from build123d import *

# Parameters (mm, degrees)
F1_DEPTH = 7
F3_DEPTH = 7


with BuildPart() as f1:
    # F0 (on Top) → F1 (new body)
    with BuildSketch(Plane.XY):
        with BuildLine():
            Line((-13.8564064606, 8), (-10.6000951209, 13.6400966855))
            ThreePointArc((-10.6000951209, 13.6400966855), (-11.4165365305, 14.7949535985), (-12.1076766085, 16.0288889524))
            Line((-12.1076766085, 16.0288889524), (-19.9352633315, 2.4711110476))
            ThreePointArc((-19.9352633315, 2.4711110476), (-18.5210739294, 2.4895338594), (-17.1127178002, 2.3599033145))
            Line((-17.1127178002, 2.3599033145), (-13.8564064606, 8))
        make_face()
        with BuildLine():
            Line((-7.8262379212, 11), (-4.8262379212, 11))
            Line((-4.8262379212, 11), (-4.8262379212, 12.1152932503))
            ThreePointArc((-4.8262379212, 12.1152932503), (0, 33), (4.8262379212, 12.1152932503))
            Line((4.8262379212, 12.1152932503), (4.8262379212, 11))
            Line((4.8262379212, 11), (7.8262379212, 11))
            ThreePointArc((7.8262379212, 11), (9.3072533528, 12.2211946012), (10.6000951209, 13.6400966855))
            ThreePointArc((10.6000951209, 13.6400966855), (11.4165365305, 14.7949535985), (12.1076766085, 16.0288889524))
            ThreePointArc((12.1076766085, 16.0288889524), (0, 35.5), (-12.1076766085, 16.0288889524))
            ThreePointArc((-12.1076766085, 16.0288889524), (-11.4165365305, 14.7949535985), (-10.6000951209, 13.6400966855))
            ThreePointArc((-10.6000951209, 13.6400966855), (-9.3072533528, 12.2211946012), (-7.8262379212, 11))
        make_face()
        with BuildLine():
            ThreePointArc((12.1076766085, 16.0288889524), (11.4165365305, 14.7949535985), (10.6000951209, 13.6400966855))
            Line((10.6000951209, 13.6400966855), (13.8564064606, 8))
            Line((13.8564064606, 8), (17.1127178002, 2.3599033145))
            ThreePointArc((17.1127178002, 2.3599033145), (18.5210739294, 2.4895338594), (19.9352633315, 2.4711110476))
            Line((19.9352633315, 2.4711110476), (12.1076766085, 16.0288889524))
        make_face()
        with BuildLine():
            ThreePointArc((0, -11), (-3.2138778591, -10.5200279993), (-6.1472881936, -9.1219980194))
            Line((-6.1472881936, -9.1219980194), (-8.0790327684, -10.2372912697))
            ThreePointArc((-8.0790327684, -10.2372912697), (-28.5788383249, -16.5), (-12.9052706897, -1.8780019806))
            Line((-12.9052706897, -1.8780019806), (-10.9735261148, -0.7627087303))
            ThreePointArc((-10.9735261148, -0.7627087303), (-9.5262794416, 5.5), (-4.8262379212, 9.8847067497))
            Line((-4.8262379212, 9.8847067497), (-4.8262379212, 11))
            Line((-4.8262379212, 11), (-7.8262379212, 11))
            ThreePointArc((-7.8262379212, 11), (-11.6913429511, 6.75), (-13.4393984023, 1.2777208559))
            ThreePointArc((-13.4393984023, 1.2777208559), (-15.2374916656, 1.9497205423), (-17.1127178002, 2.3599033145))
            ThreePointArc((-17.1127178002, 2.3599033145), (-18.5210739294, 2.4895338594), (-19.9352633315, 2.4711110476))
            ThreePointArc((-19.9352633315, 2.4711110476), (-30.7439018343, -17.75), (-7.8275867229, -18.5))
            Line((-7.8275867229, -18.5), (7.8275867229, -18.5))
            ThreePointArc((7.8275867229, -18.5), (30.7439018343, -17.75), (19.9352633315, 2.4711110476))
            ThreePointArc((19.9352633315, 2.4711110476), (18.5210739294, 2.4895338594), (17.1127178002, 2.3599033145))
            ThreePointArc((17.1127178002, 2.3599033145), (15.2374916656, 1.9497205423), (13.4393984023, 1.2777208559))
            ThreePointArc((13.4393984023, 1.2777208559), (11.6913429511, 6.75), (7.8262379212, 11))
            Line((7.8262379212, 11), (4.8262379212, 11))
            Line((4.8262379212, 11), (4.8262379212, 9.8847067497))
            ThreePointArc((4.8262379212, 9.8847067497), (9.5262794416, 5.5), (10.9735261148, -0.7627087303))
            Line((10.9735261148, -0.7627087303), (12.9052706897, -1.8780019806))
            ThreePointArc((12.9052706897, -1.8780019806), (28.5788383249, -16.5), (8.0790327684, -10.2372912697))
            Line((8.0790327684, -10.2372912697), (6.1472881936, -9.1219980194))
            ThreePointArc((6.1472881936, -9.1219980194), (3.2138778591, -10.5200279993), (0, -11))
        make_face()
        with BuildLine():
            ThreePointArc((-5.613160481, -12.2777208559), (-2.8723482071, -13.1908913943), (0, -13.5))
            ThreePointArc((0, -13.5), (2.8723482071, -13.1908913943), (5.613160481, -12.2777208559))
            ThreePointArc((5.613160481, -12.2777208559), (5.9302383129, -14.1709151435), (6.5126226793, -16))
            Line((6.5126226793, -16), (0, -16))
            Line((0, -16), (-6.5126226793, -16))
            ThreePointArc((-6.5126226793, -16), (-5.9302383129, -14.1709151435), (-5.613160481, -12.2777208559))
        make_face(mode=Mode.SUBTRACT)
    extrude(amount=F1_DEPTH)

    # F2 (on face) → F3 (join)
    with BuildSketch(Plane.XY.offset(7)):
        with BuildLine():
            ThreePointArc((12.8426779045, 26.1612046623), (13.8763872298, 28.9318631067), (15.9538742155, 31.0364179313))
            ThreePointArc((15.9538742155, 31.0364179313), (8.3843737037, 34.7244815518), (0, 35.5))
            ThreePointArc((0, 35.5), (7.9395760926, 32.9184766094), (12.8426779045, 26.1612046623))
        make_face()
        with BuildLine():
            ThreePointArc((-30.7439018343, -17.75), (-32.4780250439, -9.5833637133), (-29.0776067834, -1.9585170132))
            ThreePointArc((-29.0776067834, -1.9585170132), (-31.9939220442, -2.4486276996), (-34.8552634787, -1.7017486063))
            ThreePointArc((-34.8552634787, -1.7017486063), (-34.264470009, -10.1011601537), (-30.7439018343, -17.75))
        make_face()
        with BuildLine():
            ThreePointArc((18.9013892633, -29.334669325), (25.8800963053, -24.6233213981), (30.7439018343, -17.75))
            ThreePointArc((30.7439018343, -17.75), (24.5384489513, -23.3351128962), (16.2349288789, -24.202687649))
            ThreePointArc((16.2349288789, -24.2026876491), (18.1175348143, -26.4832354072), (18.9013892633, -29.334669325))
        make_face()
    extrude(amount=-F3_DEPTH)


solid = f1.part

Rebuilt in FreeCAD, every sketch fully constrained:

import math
import FreeCAD as App
import Part
import Sketcher
Q = App.Units.Quantity

doc = App.newDocument("Part")
body = doc.addObject("PartDesign::Body", "Body")

# Sketch on XY plane
sketch1 = doc.addObject("Sketcher::SketchObject", "Sketch")
body.addObject(sketch1)
sketch1.AttachmentSupport = (doc.XY_Plane, [""])
sketch1.MapMode = "FlatFace"
sketch1.addGeometry(Part.LineSegment(App.Vector(19.9, 2.5, 0), App.Vector(12.1, 16, 0)), False)
sketch1.addGeometry(Part.ArcOfCircle(Part.Circle(App.Vector(0, 22, 0), App.Vector(0, 0, 1), 13.5), math.radians(-26), math.radians(206)), False)
sketch1.addGeometry(Part.LineSegment(App.Vector(-12.1, 16, 0), App.Vector(-19.9, 2.5, 0)), False)
sketch1.addGeometry(Part.ArcOfCircle(Part.Circle(App.Vector(-19.1, -11, 0), App.Vector(0, 0, 1), 13.5), math.radians(94), math.radians(326)), False)
sketch1.addGeometry(Part.LineSegment(App.Vector(-7.8, -18.5, 0), App.Vector(7.8, -18.5, 0)), False)
sketch1.addGeometry(Part.ArcOfCircle(Part.Circle(App.Vector(19.1, -11, 0), App.Vector(0, 0, 1), 13.5), math.radians(-146), math.radians(86)), False)
sketch1.addGeometry(Part.ArcOfCircle(Part.Circle(App.Vector(-19.1, -11, 0), App.Vector(0, 0, 1), 13.5), math.radians(-21.74), math.radians(-5.43)), False)
sketch1.addGeometry(Part.ArcOfCircle(Part.Circle(App.Vector(0, 0, 0), App.Vector(0, 0, 1), 13.5), math.radians(-115), math.radians(-90)), False)
sketch1.addGeometry(Part.ArcOfCircle(Part.Circle(App.Vector(0, 0, 0), App.Vector(0, 0, 1), 13.5), math.radians(-90), math.radians(-65)), False)
sketch1.addGeometry(Part.ArcOfCircle(Part.Circle(App.Vector(19.1, -11, 0), App.Vector(0, 0, 1), 13.5), math.radians(-174.57), math.radians(-158.26)), False)
sketch1.addGeometry(Part.LineSegment(App.Vector(6.5, -16, 0), App.Vector(-6.5, -16, 0)), False)
sketch1.addGeometry(Part.LineSegment(App.Vector(-13.9, 8, 0), App.Vector(-10.6, 13.6, 0)), False)
sketch1.addGeometry(Part.ArcOfCircle(Part.Circle(App.Vector(0, 22, 0), App.Vector(0, 0, 1), 13.5), math.radians(-141.74), math.radians(-125.43)), False)
sketch1.addGeometry(Part.ArcOfCircle(Part.Circle(App.Vector(0, 0, 0), App.Vector(0, 0, 1), 13.5), math.radians(125), math.radians(175)), False)
sketch1.addGeometry(Part.ArcOfCircle(Part.Circle(App.Vector(-19.1, -11, 0), App.Vector(0, 0, 1), 13.5), math.radians(65.43), math.radians(81.74)), False)
sketch1.addGeometry(Part.LineSegment(App.Vector(-17.1, 2.4, 0), App.Vector(-13.9, 8, 0)), False)
sketch1.addGeometry(Part.ArcOfCircle(Part.Circle(App.Vector(0, 22, 0), App.Vector(0, 0, 1), 11), math.radians(-64), math.radians(244)), False)
sketch1.addGeometry(Part.LineSegment(App.Vector(4.8, 12.1, 0), App.Vector(4.8, 9.9, 0)), False)
sketch1.addGeometry(Part.ArcOfCircle(Part.Circle(App.Vector(0, 0, 0), App.Vector(0, 0, 1), 11), math.radians(-4), math.radians(64)), False)
sketch1.addGeometry(Part.LineSegment(App.Vector(11, -0.8, 0), App.Vector(12.9, -1.9, 0)), False)
sketch1.addGeometry(Part.ArcOfCircle(Part.Circle(App.Vector(19.1, -11, 0), App.Vector(0, 0, 1), 11), math.radians(176), math.radians(484)), False)
sketch1.addGeometry(Part.LineSegment(App.Vector(8.1, -10.2, 0), App.Vector(6.1, -9.1, 0)), False)
sketch1.addGeometry(Part.ArcOfCircle(Part.Circle(App.Vector(0, 0, 0), App.Vector(0, 0, 1), 11), math.radians(-90), math.radians(-56)), False)
sketch1.addGeometry(Part.ArcOfCircle(Part.Circle(App.Vector(0, 0, 0), App.Vector(0, 0, 1), 11), math.radians(-124), math.radians(-90)), False)
sketch1.addGeometry(Part.LineSegment(App.Vector(-6.1, -9.1, 0), App.Vector(-8.1, -10.2, 0)), False)
sketch1.addGeometry(Part.ArcOfCircle(Part.Circle(App.Vector(-19.1, -11, 0), App.Vector(0, 0, 1), 11), math.radians(56), math.radians(364)), False)
sketch1.addGeometry(Part.LineSegment(App.Vector(-12.9, -1.9, 0), App.Vector(-11, -0.8, 0)), False)
sketch1.addGeometry(Part.ArcOfCircle(Part.Circle(App.Vector(0, 0, 0), App.Vector(0, 0, 1), 11), math.radians(116), math.radians(184)), False)
sketch1.addGeometry(Part.LineSegment(App.Vector(-4.8, 9.9, 0), App.Vector(-4.8, 12.1, 0)), False)
sketch1.addGeometry(Part.ArcOfCircle(Part.Circle(App.Vector(0, 22, 0), App.Vector(0, 0, 1), 13.5), math.radians(-54.57), math.radians(-38.26)), False)
sketch1.addGeometry(Part.LineSegment(App.Vector(10.6, 13.6, 0), App.Vector(13.9, 8, 0)), False)
sketch1.addGeometry(Part.LineSegment(App.Vector(13.9, 8, 0), App.Vector(17.1, 2.4, 0)), False)
sketch1.addGeometry(Part.ArcOfCircle(Part.Circle(App.Vector(19.1, -11, 0), App.Vector(0, 0, 1), 13.5), math.radians(98.26), math.radians(114.57)), False)
sketch1.addGeometry(Part.ArcOfCircle(Part.Circle(App.Vector(0, 0, 0), App.Vector(0, 0, 1), 13.5), math.radians(5), math.radians(55)), False)
sketch1.addConstraint(Sketcher.Constraint("Coincident", 0, 2, 1, 1))
sketch1.addConstraint(Sketcher.Constraint("Coincident", 1, 2, 2, 1))
sketch1.addConstraint(Sketcher.Constraint("Coincident", 2, 2, 3, 1))
sketch1.addConstraint(Sketcher.Constraint("Coincident", 3, 2, 4, 1))
sketch1.addConstraint(Sketcher.Constraint("Coincident", 4, 2, 5, 1))
sketch1.addConstraint(Sketcher.Constraint("Coincident", 5, 2, 0, 1))
sketch1.addConstraint(Sketcher.Constraint("Coincident", 6, 2, 7, 1))
sketch1.addConstraint(Sketcher.Constraint("Tangent", 7, 2, 8, 1))
sketch1.addConstraint(Sketcher.Constraint("Coincident", 8, 2, 9, 1))
sketch1.addConstraint(Sketcher.Constraint("Coincident", 9, 2, 10, 1))
sketch1.addConstraint(Sketcher.Constraint("Coincident", 10, 2, 6, 1))
sketch1.addConstraint(Sketcher.Constraint("Coincident", 11, 2, 12, 1))
sketch1.addConstraint(Sketcher.Constraint("Coincident", 12, 2, 13, 1))
sketch1.addConstraint(Sketcher.Constraint("Coincident", 13, 2, 14, 1))
sketch1.addConstraint(Sketcher.Constraint("Coincident", 14, 2, 15, 1))
sketch1.addConstraint(Sketcher.Constraint("Coincident", 15, 2, 11, 1))
sketch1.addConstraint(Sketcher.Constraint("Coincident", 16, 1, 17, 1))
sketch1.addConstraint(Sketcher.Constraint("Coincident", 17, 2, 18, 2))
sketch1.addConstraint(Sketcher.Constraint("Coincident", 18, 1, 19, 1))
sketch1.addConstraint(Sketcher.Constraint("Coincident", 19, 2, 20, 2))
sketch1.addConstraint(Sketcher.Constraint("Coincident", 20, 1, 21, 1))
sketch1.addConstraint(Sketcher.Constraint("Coincident", 21, 2, 22, 2))
sketch1.addConstraint(Sketcher.Constraint("Tangent", 22, 1, 23, 2))
sketch1.addConstraint(Sketcher.Constraint("Coincident", 23, 1, 24, 1))
sketch1.addConstraint(Sketcher.Constraint("Coincident", 24, 2, 25, 2))
sketch1.addConstraint(Sketcher.Constraint("Coincident", 25, 1, 26, 1))
sketch1.addConstraint(Sketcher.Constraint("Coincident", 26, 2, 27, 2))
sketch1.addConstraint(Sketcher.Constraint("Coincident", 27, 1, 28, 1))
sketch1.addConstraint(Sketcher.Constraint("Coincident", 28, 2, 16, 2))
sketch1.addConstraint(Sketcher.Constraint("Coincident", 29, 2, 30, 1))
sketch1.addConstraint(Sketcher.Constraint("Coincident", 30, 2, 31, 1))
sketch1.addConstraint(Sketcher.Constraint("Coincident", 31, 2, 32, 1))
sketch1.addConstraint(Sketcher.Constraint("Coincident", 32, 2, 33, 1))
sketch1.addConstraint(Sketcher.Constraint("Coincident", 33, 2, 29, 1))
sketch1.addConstraint(Sketcher.Constraint("Horizontal", 4))
sketch1.addConstraint(Sketcher.Constraint("Horizontal", 10))
sketch1.addConstraint(Sketcher.Constraint("Vertical", 17))
sketch1.addConstraint(Sketcher.Constraint("Vertical", 28))
sketch1.addConstraint(Sketcher.Constraint("Coincident", 7, 3, -1, 1))
sketch1.addConstraint(Sketcher.Constraint("Coincident", 13, 3, -1, 1))
sketch1.addConstraint(Sketcher.Constraint("Coincident", 18, 3, -1, 1))
sketch1.addConstraint(Sketcher.Constraint("Coincident", 22, 3, -1, 1))
sketch1.addConstraint(Sketcher.Constraint("Coincident", 27, 3, -1, 1))
sketch1.addConstraint(Sketcher.Constraint("Coincident", 33, 3, -1, 1))
sketch1.addConstraint(Sketcher.Constraint("Coincident", 6, 3, 3, 3))
sketch1.addConstraint(Sketcher.Constraint("Coincident", 9, 3, 5, 3))
sketch1.addConstraint(Sketcher.Constraint("Coincident", 12, 3, 1, 3))
sketch1.addConstraint(Sketcher.Constraint("Coincident", 14, 3, 3, 3))
sketch1.addConstraint(Sketcher.Constraint("Coincident", 16, 3, 1, 3))
sketch1.addConstraint(Sketcher.Constraint("Coincident", 20, 3, 5, 3))
sketch1.addConstraint(Sketcher.Constraint("Coincident", 25, 3, 3, 3))
sketch1.addConstraint(Sketcher.Constraint("Coincident", 29, 3, 1, 3))
sketch1.addConstraint(Sketcher.Constraint("Coincident", 32, 3, 5, 3))
sketch1.addConstraint(Sketcher.Constraint("Equal", 1, 3))
sketch1.addConstraint(Sketcher.Constraint("Equal", 3, 5))
sketch1.addConstraint(Sketcher.Constraint("Equal", 5, 6))
sketch1.addConstraint(Sketcher.Constraint("Equal", 6, 7))
sketch1.addConstraint(Sketcher.Constraint("Equal", 7, 8))
sketch1.addConstraint(Sketcher.Constraint("Equal", 8, 9))
sketch1.addConstraint(Sketcher.Constraint("Equal", 9, 12))
sketch1.addConstraint(Sketcher.Constraint("Equal", 12, 13))
sketch1.addConstraint(Sketcher.Constraint("Equal", 13, 14))
sketch1.addConstraint(Sketcher.Constraint("Equal", 16, 18))
sketch1.addConstraint(Sketcher.Constraint("Equal", 18, 20))
sketch1.addConstraint(Sketcher.Constraint("Equal", 20, 22))
sketch1.addConstraint(Sketcher.Constraint("Equal", 22, 23))
sketch1.addConstraint(Sketcher.Constraint("Equal", 23, 25))
sketch1.addConstraint(Sketcher.Constraint("Equal", 25, 27))
sketch1.addConstraint(Sketcher.Constraint("Equal", 14, 29))
sketch1.addConstraint(Sketcher.Constraint("Equal", 29, 32))
sketch1.addConstraint(Sketcher.Constraint("Equal", 32, 33))
sketch1.addConstraint(Sketcher.Constraint("Symmetric", 3, 3, 5, 3, -2))
sketch1.addConstraint(Sketcher.Constraint("Symmetric", 0, 2, 1, 2, -2))
sketch1.addConstraint(Sketcher.Constraint("Symmetric", 15, 2, 30, 2, -2))
sketch1.addConstraint(Sketcher.Constraint("PointOnObject", 7, 2, -2))
sketch1.addConstraint(Sketcher.Constraint("PointOnObject", 22, 1, -2))
sketch1.addConstraint(Sketcher.Constraint("Parallel", 2, 11))
sketch1.addConstraint(Sketcher.Constraint("Parallel", 11, 15))
sketch1.addConstraint(Sketcher.Constraint("Perpendicular", 15, 19))
sketch1.addConstraint(Sketcher.Constraint("Parallel", 19, 21))
sketch1.addConstraint(Sketcher.Constraint("Perpendicular", 0, 24))
sketch1.addConstraint(Sketcher.Constraint("Parallel", 24, 26))
sketch1.addConstraint(Sketcher.Constraint("Perpendicular", 26, 30))
sketch1.addConstraint(Sketcher.Constraint("Parallel", 30, 31))
sketch1.addConstraint(Sketcher.Constraint("Horizontal", 2, 2, 5, 2))
sketch1.addConstraint(Sketcher.Constraint("Horizontal", 32, 3, 22, 1))
sketch1.addConstraint(Sketcher.Constraint("Horizontal", 21, 2, 23, 1))
sketch1.addConstraint(Sketcher.Constraint("Horizontal", 19, 2, 25, 1))
sketch1.addConstraint(Sketcher.Constraint("Horizontal", 17, 2, 27, 1))
sketch1.addConstraint(Sketcher.Constraint("Equal", 11, 15))
sketch1.addConstraint(Sketcher.Constraint("Equal", 19, 21))
sketch1.addConstraint(Sketcher.Constraint("Radius", 16, 11.0))
sketch1.addConstraint(Sketcher.Constraint("Radius", 1, 13.5))
sketch1.addConstraint(Sketcher.Constraint("Angle", 0, Q("120 deg")))
sketch1.addConstraint(Sketcher.Constraint("DistanceY", -1, 1, 1, 3, 22.0))
sketch1.addConstraint(Sketcher.Constraint("DistanceY", 9, 2, -1, 1, 16.0))
sketch1.addConstraint(Sketcher.Constraint("DistanceY", -1, 1, 15, 2, 8.0))
sketch1.addConstraint(Sketcher.Constraint("DistanceY", 3, 2, 7, 2, 5.0))
sketch1.addConstraint(Sketcher.Constraint("DistanceX", 12, 2, 27, 1, 3.0))
sketch1.addConstraint(Sketcher.Constraint("DistanceY", 19, 2, -1, 1, 1.878002))
sketch1.addConstraint(Sketcher.Constraint("DistanceX", 13, 2, -1, 1, 13.439398))
sketch1.addConstraint(Sketcher.Constraint("DistanceY", -1, 1, 0, 2, 16.028889))
pad1 = doc.addObject("PartDesign::Pad", "Pad")
body.addObject(pad1)
pad1.Profile = sketch1
pad1.Length = 7

# Sketch on XY plane
sketch2 = doc.addObject("Sketcher::SketchObject", "Sketch001")
body.addObject(sketch2)
sketch2.AttachmentSupport = (doc.XY_Plane, [""])
sketch2.MapMode = "FlatFace"
sketch2.AttachmentOffset = App.Placement(App.Vector(0, 0, 7), App.Rotation())
sketch2.addGeometry(Part.ArcOfCircle(Part.Circle(App.Vector(20, 25, 0), App.Vector(0, 0, 1), 7), math.radians(123), math.radians(172)), False)
sketch2.addGeometry(Part.ArcOfCircle(Part.Circle(App.Vector(2, 12, 0), App.Vector(0, 0, 1), 23), math.radians(54), math.radians(95)), False)
sketch2.addGeometry(Part.ArcOfCircle(Part.Circle(App.Vector(0, 22, 0), App.Vector(0, 0, 1), 14), math.radians(18), math.radians(90)), False)
sketch2.addGeometry(Part.ArcOfCircle(Part.Circle(App.Vector(-19, -11, 0), App.Vector(0, 0, 1), 14), math.radians(138), math.radians(210)), False)
sketch2.addGeometry(Part.ArcOfCircle(Part.Circle(App.Vector(-32, 5, 0), App.Vector(0, 0, 1), 7), math.radians(-117), math.radians(-68)), False)
sketch2.addGeometry(Part.ArcOfCircle(Part.Circle(App.Vector(-12, -4, 0), App.Vector(0, 0, 1), 23), math.radians(174), math.radians(215)), False)
sketch2.addGeometry(Part.ArcOfCircle(Part.Circle(App.Vector(9, -8, 0), App.Vector(0, 0, 1), 23), math.radians(-66), math.radians(-25)), False)
sketch2.addGeometry(Part.ArcOfCircle(Part.Circle(App.Vector(19, -11, 0), App.Vector(0, 0, 1), 14), math.radians(-102), math.radians(-30)), False)
sketch2.addGeometry(Part.ArcOfCircle(Part.Circle(App.Vector(12, -30, 0), App.Vector(0, 0, 1), 7), math.radians(3), math.radians(52)), False)
sketch2.addConstraint(Sketcher.Constraint("Coincident", 0, 1, 1, 1))
sketch2.addConstraint(Sketcher.Constraint("Coincident", 1, 2, 2, 2))
sketch2.addConstraint(Sketcher.Constraint("Coincident", 2, 1, 0, 2))
sketch2.addConstraint(Sketcher.Constraint("Coincident", 3, 1, 4, 2))
sketch2.addConstraint(Sketcher.Constraint("Coincident", 4, 1, 5, 1))
sketch2.addConstraint(Sketcher.Constraint("Coincident", 5, 2, 3, 2))
sketch2.addConstraint(Sketcher.Constraint("Coincident", 6, 2, 7, 2))
sketch2.addConstraint(Sketcher.Constraint("Coincident", 7, 1, 8, 2))
sketch2.addConstraint(Sketcher.Constraint("Coincident", 8, 1, 6, 1))
sketch2.addConstraint(Sketcher.Constraint("Equal", 2, 3))
sketch2.addConstraint(Sketcher.Constraint("Equal", 0, 4))
sketch2.addConstraint(Sketcher.Constraint("Equal", 1, 5))
sketch2.addConstraint(Sketcher.Constraint("Equal", 5, 6))
sketch2.addConstraint(Sketcher.Constraint("Equal", 3, 7))
sketch2.addConstraint(Sketcher.Constraint("Equal", 4, 8))
sketch2.addConstraint(Sketcher.Constraint("Symmetric", 3, 3, 7, 3, -2))
sketch2.addConstraint(Sketcher.Constraint("PointOnObject", 2, 3, -2))
sketch2.addConstraint(Sketcher.Constraint("PointOnObject", 1, 2, -2))
sketch2.addConstraint(Sketcher.Constraint("Horizontal", 5, 2, 6, 2))
sketch2.addConstraint(Sketcher.Constraint("Radius", 2, 13.5))
sketch2.addConstraint(Sketcher.Constraint("DistanceY", -1, 1, 2, 3, 22.0))
sketch2.addConstraint(Sketcher.Constraint("DistanceY", 3, 3, -1, 1, 11.0))
sketch2.addConstraint(Sketcher.Constraint("DistanceY", 5, 2, -1, 1, 17.75))
sketch2.addConstraint(Sketcher.Constraint("Radius", 1, 23.44246))
sketch2.addConstraint(Sketcher.Constraint("Radius", 0, 7.062694))
sketch2.addConstraint(Sketcher.Constraint("DistanceY", -1, 1, 4, 3, 4.607102))
sketch2.addConstraint(Sketcher.Constraint("DistanceX", 5, 2, -1, 1, 30.743902))
sketch2.addConstraint(Sketcher.Constraint("DistanceX", 4, 3, 0, 3, 51.510398))
sketch2.addConstraint(Sketcher.Constraint("DistanceX", 5, 3, 6, 3, 21.042599))
sketch2.addConstraint(Sketcher.Constraint("DistanceX", 6, 3, 8, 3, 2.363101))
sketch2.addConstraint(Sketcher.Constraint("DistanceY", 4, 1, 1, 3, 13.850699))
sketch2.addConstraint(Sketcher.Constraint("DistanceY", -1, 1, 0, 3, 25.132441))
sketch2.addConstraint(Sketcher.Constraint("DistanceX", -1, 1, 1, 3, 2.068181))
sketch2.addConstraint(Sketcher.Constraint("DistanceX", 5, 3, -1, 1, 11.55539))
sketch2.addConstraint(Sketcher.Constraint("DistanceX", -1, 1, 7, 1, 16.234929))
pad2 = doc.addObject("PartDesign::Pad", "Pad001")
body.addObject(pad2)
pad2.Profile = sketch2
pad2.Length = 7
pad2.Reversed = True

doc.recompute()
